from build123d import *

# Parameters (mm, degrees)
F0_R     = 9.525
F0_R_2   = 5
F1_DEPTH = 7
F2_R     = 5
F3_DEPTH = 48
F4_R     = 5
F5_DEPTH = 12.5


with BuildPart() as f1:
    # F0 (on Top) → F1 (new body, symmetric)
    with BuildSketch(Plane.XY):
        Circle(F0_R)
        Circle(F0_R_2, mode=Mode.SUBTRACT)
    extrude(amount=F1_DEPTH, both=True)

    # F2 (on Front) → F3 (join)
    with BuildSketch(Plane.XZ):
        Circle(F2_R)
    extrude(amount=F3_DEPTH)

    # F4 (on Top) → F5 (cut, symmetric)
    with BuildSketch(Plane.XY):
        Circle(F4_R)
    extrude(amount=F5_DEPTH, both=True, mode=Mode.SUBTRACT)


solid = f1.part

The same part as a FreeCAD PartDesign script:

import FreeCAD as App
import Part
import Sketcher

V = App.Vector
Q = App.Units.Quantity

doc = App.newDocument("Part")
params = doc.addObject("Spreadsheet::Sheet", "Params")
for row, (alias, value) in enumerate([
    ("sketch1_diameter", "10 mm"),
    ("sketch1_diameter2", "19.05 mm"),
    ("pad1_length", "14 mm"),
    ("sketch2_diameter", "10 mm"),
    ("pad2_length", "48 mm"),
    ("sketch3_diameter", "10 mm"),
    ("pocket1_length", "25 mm"),
], start=1):
    params.set(f"A{row}", alias)
    params.set(f"B{row}", "=" + value)
    params.setAlias(f"B{row}", alias)

body = doc.addObject("PartDesign::Body", "Body")

# Sketch on XY plane
sketch1 = body.newObject("Sketcher::SketchObject", "Sketch")
sketch1.AttachmentSupport = (doc.getObject("XY_Plane"), [""])
sketch1.MapMode = "FlatFace"
sketch1.addGeometry([
    Part.Circle(V(0, 0, 0), V(0, 0, 1), 10),
    Part.Circle(V(0, 0, 0), V(0, 0, 1), 5),
], False)
sketch1.addConstraint([
    Sketcher.Constraint("Coincident", 0, 3, -1, 1),
    Sketcher.Constraint("Coincident", 1, 3, -1, 1),
    Sketcher.Constraint("Diameter", 1, Q("10 mm")),
    Sketcher.Constraint("Diameter", 0, Q("19.05 mm")),
])
sketch1.setExpression("Constraints[2]", "Params.sketch1_diameter")
sketch1.setExpression("Constraints[3]", "Params.sketch1_diameter2")
pad1 = body.newObject("PartDesign::Pad", "Pad")
pad1.Profile = sketch1
pad1.setExpression("Length", "Params.pad1_length")
pad1.Midplane = True

# Sketch on XZ plane
sketch2 = body.newObject("Sketcher::SketchObject", "Sketch001")
sketch2.AttachmentSupport = (doc.getObject("XZ_Plane"), [""])
sketch2.MapMode = "FlatFace"
sketch2.addGeometry(Part.Circle(V(0, 0, 0), V(0, 0, 1), 5), False)
sketch2.addConstraint([
    Sketcher.Constraint("Coincident", 0, 3, -1, 1),
    Sketcher.Constraint("Diameter", 0, Q("10 mm")),
])
sketch2.setExpression("Constraints[1]", "Params.sketch2_diameter")
pad2 = body.newObject("PartDesign::Pad", "Pad001")
pad2.Profile = sketch2
pad2.setExpression("Length", "Params.pad2_length")

# Sketch on XY plane
sketch3 = body.newObject("Sketcher::SketchObject", "Sketch002")
sketch3.AttachmentSupport = (doc.getObject("XY_Plane"), [""])
sketch3.MapMode = "FlatFace"
sketch3.addGeometry(Part.Circle(V(0, 0, 0), V(0, 0, 1), 5), False)
sketch3.addConstraint([
    Sketcher.Constraint("Coincident", 0, 3, -1, 1),
    Sketcher.Constraint("Diameter", 0, Q("10 mm")),
])
sketch3.setExpression("Constraints[1]", "Params.sketch3_diameter")
pocket1 = body.newObject("PartDesign::Pocket", "Pocket")
pocket1.Profile = sketch3
pocket1.setExpression("Length", "Params.pocket1_length")
pocket1.Midplane = True

doc.recompute()
